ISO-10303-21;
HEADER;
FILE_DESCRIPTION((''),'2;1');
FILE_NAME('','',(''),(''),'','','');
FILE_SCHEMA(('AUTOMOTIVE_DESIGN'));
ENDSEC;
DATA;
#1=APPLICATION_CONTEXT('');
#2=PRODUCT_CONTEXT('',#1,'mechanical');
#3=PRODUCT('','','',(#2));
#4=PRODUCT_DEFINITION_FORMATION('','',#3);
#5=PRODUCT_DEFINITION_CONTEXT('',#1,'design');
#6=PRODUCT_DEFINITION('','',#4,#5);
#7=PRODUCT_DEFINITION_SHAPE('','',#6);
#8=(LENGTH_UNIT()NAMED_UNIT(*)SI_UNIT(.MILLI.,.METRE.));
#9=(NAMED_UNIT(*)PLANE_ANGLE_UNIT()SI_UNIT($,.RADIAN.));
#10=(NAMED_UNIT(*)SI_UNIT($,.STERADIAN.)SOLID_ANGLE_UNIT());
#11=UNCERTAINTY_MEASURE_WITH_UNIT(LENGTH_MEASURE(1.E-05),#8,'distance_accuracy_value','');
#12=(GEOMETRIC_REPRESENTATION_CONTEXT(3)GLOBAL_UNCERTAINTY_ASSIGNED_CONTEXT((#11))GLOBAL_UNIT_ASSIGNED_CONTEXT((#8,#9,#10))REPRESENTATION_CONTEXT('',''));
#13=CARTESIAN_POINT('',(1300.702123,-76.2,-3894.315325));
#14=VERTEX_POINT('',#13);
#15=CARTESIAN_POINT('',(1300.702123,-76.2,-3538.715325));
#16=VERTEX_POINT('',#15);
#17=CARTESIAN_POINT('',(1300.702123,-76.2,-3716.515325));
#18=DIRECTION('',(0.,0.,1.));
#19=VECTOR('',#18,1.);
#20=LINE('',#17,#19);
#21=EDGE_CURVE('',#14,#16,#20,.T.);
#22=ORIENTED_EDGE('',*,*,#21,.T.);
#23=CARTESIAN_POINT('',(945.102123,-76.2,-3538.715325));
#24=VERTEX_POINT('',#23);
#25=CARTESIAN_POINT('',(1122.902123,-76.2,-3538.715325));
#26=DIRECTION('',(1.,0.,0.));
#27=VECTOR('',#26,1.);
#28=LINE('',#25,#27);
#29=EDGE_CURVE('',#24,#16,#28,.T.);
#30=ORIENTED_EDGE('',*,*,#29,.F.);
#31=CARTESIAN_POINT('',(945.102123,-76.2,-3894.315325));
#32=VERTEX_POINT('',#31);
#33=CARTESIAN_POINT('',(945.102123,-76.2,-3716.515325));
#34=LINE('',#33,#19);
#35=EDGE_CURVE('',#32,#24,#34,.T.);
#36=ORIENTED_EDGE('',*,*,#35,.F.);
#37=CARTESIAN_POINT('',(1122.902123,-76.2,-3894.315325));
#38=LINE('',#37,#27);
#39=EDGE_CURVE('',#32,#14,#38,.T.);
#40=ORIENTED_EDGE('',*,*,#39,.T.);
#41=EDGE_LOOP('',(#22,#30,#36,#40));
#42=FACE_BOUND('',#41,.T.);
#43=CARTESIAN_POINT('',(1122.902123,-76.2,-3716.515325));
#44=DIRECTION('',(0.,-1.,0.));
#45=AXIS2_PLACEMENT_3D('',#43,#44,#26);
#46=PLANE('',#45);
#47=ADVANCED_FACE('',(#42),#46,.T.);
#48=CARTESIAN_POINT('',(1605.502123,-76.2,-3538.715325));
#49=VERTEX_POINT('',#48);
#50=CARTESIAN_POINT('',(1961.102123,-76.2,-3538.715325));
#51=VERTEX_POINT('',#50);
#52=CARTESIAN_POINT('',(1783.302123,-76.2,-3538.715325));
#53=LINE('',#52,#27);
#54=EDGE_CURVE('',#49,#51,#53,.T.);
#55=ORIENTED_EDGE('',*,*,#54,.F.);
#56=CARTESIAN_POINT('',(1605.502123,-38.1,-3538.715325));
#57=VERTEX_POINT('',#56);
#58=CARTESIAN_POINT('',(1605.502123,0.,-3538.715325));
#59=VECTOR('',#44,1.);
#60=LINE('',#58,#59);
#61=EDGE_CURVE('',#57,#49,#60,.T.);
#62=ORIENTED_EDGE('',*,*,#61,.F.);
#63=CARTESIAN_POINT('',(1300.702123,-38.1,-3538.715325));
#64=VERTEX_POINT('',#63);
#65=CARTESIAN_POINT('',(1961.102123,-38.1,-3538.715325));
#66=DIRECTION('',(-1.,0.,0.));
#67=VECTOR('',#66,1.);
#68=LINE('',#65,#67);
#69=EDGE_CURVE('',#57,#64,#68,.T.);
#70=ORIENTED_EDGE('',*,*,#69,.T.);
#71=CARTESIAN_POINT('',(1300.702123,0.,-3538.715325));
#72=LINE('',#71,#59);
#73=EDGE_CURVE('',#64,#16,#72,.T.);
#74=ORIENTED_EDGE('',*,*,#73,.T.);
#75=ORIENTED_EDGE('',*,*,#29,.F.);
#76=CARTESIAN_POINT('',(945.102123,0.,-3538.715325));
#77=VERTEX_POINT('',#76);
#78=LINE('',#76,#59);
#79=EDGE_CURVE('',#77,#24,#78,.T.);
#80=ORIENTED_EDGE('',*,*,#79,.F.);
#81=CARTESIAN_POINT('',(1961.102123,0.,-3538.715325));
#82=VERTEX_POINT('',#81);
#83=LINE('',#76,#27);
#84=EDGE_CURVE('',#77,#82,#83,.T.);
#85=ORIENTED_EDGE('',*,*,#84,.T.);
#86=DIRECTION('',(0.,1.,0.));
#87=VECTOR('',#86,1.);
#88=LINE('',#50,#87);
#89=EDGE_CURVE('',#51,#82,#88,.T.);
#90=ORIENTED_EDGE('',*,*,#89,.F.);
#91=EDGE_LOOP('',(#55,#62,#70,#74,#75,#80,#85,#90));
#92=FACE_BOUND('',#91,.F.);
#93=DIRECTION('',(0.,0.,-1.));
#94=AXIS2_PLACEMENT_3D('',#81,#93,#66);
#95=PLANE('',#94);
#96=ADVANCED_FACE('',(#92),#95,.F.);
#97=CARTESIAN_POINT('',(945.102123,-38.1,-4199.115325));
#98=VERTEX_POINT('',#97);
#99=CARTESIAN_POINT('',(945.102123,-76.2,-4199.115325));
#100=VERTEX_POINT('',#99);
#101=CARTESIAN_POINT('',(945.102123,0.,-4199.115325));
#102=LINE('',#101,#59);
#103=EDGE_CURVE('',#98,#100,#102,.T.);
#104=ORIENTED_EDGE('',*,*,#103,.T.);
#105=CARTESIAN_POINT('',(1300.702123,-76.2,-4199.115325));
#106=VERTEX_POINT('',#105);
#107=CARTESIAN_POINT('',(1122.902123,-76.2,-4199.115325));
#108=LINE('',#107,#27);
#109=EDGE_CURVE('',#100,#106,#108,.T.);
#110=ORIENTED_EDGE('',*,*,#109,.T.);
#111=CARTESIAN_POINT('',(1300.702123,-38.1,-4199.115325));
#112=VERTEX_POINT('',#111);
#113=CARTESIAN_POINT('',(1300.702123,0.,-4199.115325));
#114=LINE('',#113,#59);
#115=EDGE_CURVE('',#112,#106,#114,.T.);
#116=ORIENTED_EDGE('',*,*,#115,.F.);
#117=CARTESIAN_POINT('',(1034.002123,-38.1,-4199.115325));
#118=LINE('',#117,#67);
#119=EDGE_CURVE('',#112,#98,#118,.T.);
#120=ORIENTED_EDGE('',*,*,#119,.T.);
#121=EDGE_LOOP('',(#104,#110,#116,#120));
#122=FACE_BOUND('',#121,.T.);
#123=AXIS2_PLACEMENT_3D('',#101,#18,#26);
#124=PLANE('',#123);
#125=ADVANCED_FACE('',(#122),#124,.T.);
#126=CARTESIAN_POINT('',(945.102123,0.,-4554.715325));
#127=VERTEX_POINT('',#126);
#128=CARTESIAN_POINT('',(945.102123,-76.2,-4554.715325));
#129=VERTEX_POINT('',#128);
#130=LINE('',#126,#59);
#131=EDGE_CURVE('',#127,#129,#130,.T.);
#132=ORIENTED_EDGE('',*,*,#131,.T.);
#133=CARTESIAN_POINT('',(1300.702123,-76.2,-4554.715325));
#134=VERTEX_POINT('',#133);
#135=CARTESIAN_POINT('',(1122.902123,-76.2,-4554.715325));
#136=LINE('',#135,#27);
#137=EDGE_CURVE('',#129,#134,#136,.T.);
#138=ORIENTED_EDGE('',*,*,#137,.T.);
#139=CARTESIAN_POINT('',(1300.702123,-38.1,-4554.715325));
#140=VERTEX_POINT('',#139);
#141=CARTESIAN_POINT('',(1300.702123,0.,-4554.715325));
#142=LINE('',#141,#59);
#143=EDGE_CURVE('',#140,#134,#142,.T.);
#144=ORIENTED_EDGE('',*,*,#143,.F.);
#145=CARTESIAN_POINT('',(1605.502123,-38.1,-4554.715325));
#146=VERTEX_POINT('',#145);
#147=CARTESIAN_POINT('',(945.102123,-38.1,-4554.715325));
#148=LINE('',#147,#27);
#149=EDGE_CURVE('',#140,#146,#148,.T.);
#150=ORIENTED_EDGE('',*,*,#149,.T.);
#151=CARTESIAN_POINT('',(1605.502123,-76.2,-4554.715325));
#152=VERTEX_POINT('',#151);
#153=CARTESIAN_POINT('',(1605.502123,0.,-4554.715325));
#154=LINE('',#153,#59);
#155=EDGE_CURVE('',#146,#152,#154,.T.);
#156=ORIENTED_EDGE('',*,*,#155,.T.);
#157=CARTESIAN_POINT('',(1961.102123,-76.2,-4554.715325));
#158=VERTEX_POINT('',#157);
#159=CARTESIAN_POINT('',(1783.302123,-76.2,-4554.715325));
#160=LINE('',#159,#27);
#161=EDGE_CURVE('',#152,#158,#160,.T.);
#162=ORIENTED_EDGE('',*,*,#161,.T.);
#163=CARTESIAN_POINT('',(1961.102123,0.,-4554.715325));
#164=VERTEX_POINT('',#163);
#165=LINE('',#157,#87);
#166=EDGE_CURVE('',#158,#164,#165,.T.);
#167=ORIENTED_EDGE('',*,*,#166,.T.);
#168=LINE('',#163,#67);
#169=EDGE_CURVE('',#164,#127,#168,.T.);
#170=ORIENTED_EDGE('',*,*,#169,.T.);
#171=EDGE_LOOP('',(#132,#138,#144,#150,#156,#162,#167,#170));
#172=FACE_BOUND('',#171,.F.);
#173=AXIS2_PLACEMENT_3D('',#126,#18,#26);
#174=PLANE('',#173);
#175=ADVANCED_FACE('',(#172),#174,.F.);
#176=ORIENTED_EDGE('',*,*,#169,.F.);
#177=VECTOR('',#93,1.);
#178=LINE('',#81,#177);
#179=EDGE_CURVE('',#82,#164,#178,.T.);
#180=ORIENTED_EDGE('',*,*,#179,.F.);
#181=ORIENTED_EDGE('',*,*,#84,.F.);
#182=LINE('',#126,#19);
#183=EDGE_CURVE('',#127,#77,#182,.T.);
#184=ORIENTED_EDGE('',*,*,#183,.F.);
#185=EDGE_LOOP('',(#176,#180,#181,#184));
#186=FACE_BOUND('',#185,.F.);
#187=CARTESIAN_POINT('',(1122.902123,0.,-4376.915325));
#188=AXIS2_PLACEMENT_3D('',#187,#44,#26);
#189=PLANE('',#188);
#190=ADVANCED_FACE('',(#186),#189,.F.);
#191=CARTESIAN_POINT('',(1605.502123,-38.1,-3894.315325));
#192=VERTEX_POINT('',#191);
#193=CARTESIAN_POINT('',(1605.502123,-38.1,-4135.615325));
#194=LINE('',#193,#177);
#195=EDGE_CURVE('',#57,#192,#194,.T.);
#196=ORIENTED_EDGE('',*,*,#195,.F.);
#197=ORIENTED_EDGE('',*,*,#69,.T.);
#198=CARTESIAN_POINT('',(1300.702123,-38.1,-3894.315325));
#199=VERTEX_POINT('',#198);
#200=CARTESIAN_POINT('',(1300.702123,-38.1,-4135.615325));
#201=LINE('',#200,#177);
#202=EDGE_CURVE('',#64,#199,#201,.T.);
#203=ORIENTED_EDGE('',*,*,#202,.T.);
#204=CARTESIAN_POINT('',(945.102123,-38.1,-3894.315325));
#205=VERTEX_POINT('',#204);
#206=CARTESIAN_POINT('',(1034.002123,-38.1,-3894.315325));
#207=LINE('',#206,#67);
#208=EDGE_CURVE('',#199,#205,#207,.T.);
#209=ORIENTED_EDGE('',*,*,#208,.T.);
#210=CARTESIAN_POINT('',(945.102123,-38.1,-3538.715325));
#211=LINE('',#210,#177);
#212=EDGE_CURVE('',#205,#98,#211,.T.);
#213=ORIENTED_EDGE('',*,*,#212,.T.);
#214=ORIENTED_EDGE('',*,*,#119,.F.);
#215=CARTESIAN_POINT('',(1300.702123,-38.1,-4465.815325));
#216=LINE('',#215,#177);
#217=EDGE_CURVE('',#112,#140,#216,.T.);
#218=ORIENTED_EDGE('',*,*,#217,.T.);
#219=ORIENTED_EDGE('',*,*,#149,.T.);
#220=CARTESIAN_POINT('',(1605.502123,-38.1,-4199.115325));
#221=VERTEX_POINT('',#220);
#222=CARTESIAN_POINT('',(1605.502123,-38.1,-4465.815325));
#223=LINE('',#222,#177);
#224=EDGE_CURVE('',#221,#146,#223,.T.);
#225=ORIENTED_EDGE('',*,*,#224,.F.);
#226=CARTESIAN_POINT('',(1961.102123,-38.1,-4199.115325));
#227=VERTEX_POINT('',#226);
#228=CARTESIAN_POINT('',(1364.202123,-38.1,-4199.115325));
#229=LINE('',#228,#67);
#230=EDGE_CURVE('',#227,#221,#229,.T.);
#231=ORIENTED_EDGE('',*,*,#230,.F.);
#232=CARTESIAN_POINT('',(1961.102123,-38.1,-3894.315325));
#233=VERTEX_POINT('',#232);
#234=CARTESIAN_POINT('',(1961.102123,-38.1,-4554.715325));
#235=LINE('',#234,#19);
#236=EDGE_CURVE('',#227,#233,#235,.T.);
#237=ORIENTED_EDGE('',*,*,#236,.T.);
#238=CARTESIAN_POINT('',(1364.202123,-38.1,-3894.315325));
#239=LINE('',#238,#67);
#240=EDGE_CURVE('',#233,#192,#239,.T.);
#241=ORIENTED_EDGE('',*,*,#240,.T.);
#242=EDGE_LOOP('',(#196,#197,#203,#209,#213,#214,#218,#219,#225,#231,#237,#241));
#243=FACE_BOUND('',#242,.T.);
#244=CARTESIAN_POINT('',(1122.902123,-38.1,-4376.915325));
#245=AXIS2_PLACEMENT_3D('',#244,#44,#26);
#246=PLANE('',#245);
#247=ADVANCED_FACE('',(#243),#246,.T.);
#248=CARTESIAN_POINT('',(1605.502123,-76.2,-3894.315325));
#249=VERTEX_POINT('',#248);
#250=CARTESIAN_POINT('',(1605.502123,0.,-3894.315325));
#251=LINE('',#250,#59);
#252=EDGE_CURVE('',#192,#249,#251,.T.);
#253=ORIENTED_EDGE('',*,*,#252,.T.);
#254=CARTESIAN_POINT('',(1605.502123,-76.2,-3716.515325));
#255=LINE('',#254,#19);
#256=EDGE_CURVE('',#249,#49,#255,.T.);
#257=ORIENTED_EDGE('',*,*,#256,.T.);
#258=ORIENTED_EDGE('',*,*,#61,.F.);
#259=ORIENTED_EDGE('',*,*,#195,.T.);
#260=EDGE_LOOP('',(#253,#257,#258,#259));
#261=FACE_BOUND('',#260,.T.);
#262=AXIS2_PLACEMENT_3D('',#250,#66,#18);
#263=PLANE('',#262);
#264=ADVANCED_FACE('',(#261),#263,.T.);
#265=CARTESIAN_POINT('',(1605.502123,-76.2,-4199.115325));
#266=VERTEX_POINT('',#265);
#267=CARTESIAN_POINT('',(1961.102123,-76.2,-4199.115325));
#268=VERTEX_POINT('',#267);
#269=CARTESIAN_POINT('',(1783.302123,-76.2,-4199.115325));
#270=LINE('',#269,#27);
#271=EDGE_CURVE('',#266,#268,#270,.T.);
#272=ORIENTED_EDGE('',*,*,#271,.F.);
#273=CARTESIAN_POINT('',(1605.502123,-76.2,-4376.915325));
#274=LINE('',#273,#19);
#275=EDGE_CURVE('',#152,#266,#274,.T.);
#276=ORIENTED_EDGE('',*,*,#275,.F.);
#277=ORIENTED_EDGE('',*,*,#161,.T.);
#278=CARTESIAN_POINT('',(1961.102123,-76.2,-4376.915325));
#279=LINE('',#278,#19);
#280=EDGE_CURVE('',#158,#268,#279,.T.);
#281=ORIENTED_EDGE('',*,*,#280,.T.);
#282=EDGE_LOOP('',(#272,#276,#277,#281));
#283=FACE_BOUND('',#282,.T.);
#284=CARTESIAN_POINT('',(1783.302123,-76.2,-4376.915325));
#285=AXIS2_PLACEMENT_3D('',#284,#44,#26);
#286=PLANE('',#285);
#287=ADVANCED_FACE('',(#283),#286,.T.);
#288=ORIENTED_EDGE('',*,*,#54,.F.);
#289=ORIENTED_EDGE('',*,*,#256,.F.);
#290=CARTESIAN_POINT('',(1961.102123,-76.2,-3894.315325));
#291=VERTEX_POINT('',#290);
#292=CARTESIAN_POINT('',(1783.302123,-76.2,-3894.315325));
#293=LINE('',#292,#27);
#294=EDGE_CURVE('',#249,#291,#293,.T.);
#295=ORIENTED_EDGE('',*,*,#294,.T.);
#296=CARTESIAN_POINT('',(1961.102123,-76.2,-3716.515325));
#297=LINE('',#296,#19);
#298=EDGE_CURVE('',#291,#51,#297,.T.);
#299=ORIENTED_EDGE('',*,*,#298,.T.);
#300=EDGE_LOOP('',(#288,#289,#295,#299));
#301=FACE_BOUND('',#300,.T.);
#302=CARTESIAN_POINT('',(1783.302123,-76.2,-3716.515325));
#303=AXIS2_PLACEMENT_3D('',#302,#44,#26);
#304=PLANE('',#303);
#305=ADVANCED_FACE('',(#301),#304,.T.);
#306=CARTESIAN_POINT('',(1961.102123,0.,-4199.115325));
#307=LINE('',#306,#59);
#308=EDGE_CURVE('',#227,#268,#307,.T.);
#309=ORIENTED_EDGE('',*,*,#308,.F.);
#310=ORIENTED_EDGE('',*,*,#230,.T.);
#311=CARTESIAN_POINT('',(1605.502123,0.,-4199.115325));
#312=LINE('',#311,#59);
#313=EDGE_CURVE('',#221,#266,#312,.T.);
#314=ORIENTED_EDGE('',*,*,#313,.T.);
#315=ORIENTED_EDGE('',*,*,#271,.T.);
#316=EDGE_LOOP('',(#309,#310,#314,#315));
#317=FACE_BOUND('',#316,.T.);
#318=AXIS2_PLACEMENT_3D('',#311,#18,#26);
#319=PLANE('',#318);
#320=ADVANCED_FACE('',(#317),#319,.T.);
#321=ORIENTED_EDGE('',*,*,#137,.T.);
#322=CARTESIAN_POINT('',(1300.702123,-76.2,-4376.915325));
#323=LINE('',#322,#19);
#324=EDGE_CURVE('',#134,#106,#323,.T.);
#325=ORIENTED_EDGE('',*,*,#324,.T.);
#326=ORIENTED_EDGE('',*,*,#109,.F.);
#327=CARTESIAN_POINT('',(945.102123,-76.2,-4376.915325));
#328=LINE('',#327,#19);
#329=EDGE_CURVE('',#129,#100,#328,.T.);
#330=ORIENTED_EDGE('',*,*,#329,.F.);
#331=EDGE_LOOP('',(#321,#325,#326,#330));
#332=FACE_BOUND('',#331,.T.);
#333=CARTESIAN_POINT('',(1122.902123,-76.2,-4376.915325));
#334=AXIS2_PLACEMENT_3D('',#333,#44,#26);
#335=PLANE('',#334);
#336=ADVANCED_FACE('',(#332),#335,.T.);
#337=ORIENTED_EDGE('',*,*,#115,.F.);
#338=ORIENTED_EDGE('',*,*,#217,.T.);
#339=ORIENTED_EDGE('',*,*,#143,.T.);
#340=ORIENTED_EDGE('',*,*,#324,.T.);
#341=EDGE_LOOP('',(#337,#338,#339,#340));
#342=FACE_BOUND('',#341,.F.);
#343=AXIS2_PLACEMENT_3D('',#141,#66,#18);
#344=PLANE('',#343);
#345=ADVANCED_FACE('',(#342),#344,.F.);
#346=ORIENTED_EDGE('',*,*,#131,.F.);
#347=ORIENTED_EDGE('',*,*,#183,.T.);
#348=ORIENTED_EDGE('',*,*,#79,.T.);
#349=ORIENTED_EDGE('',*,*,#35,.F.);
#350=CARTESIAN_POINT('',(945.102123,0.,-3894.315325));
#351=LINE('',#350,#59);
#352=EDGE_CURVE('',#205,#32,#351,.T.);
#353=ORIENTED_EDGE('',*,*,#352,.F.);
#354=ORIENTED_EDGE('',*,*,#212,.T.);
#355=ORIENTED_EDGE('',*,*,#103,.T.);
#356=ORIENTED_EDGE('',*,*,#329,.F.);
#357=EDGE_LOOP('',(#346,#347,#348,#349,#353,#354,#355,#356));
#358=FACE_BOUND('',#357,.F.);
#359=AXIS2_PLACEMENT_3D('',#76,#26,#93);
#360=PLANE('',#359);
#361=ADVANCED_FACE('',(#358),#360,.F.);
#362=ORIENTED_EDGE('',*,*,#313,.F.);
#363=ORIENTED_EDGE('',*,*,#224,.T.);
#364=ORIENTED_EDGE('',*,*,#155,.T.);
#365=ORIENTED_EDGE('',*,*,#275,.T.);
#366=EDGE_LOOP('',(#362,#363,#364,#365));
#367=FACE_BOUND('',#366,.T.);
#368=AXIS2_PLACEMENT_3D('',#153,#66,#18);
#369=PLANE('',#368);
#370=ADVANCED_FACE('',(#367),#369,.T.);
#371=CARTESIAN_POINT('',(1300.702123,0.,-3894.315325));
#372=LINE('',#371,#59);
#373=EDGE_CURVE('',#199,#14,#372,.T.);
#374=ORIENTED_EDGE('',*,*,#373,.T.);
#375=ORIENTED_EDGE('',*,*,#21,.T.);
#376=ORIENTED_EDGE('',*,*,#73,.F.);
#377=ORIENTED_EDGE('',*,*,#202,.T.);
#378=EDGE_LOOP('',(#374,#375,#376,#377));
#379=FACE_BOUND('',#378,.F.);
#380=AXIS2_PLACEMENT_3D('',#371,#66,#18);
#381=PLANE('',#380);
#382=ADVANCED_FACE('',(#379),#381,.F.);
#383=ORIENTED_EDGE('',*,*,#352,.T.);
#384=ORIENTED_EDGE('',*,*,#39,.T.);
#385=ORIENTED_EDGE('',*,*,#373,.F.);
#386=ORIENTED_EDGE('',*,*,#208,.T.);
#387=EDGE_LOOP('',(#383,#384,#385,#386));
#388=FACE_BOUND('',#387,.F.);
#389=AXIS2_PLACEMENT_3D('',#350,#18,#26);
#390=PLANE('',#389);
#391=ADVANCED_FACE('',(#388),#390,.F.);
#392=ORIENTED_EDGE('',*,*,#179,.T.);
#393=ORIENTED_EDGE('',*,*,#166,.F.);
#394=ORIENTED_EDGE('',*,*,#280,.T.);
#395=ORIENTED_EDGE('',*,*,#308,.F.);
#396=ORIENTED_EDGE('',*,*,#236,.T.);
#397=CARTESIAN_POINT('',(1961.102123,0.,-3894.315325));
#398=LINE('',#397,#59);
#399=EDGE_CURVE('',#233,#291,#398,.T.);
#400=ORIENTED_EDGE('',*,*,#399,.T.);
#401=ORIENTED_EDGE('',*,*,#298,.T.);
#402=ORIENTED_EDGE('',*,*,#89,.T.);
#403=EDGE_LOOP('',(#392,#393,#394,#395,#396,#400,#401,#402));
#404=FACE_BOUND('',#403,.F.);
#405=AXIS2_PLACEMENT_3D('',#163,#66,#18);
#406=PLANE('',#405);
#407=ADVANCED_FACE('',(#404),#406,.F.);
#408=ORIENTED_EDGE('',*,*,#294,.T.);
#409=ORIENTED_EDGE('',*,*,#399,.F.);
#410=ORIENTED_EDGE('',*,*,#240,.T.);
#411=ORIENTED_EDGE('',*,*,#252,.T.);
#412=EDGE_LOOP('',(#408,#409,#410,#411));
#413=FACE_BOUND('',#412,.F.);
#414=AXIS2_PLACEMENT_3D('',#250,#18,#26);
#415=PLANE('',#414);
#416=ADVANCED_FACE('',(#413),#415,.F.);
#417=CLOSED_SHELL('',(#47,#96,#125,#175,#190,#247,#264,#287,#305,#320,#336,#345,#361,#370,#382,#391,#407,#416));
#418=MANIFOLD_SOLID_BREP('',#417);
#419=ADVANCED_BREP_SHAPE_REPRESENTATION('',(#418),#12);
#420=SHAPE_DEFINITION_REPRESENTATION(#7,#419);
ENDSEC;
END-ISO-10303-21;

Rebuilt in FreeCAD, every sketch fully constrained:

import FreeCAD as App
import Part
import Sketcher
from FreeCAD import Vector
Q = App.Units.Quantity

doc = App.newDocument("Part")
body = doc.addObject("PartDesign::Body", "Body")

# Sketch on XZ plane
sketch1 = body.newObject("Sketcher::SketchObject", "Sketch")
sketch1.AttachmentSupport = (doc.getObject("XZ_Plane"), [""])
sketch1.MapMode = "FlatFace"
sketch1.addGeometry(Part.LineSegment(Vector(945, -4555, 0), Vector(1961, -4555, 0)), False)
sketch1.addGeometry(Part.LineSegment(Vector(1961, -4555, 0), Vector(1961, -3539, 0)), False)
sketch1.addGeometry(Part.LineSegment(Vector(1961, -3539, 0), Vector(945, -3539, 0)), False)
sketch1.addGeometry(Part.LineSegment(Vector(945, -3539, 0), Vector(945, -4555, 0)), False)
sketch1.addConstraint(Sketcher.Constraint("Coincident", 0, 2, 1, 1))
sketch1.addConstraint(Sketcher.Constraint("Coincident", 1, 2, 2, 1))
sketch1.addConstraint(Sketcher.Constraint("Coincident", 2, 2, 3, 1))
sketch1.addConstraint(Sketcher.Constraint("Coincident", 3, 2, 0, 1))
sketch1.addConstraint(Sketcher.Constraint("Horizontal", 0))
sketch1.addConstraint(Sketcher.Constraint("Vertical", 1))
sketch1.addConstraint(Sketcher.Constraint("Horizontal", 2))
sketch1.addConstraint(Sketcher.Constraint("Vertical", 3))
sketch1.addConstraint(Sketcher.Constraint("Equal", 2, 1))
sketch1.addConstraint(Sketcher.Constraint("DistanceX", 0, 1, 0, 2, Q("40 in")))
sketch1.addConstraint(Sketcher.Constraint("DistanceX", -1, 1, 0, 2, Q("1961.102123 mm")))
sketch1.addConstraint(Sketcher.Constraint("DistanceY", 0, 2, -1, 1, Q("4554.715325 mm")))
pad1 = body.newObject("PartDesign::Pad", "Pad")
pad1.Profile = sketch1
pad1.Length = Q("1.5 in")

# Sketch on XZ plane
sketch2 = body.newObject("Sketcher::SketchObject", "Sketch001")
sketch2.AttachmentSupport = (doc.getObject("XZ_Plane"), [""])
sketch2.MapMode = "FlatFace"
sketch2.addGeometry(Part.LineSegment(Vector(1606, -3539, 0), Vector(1606, -3894, 0)), False)
sketch2.addGeometry(Part.LineSegment(Vector(1606, -3894, 0), Vector(1961, -3894, 0)), False)
sketch2.addGeometry(Part.LineSegment(Vector(1961, -3894, 0), Vector(1961, -3539, 0)), False)
sketch2.addGeometry(Part.LineSegment(Vector(1961, -3539, 0), Vector(1606, -3539, 0)), False)
sketch2.addGeometry(Part.LineSegment(Vector(1606, -4199, 0), Vector(1606, -4555, 0)), False)
sketch2.addGeometry(Part.LineSegment(Vector(1606, -4555, 0), Vector(1961, -4555, 0)), False)
sketch2.addGeometry(Part.LineSegment(Vector(1961, -4555, 0), Vector(1961, -4199, 0)), False)
sketch2.addGeometry(Part.LineSegment(Vector(1961, -4199, 0), Vector(1606, -4199, 0)), False)
sketch2.addGeometry(Part.LineSegment(Vector(945, -4199, 0), Vector(945, -4555, 0)), False)
sketch2.addGeometry(Part.LineSegment(Vector(945, -4555, 0), Vector(1301, -4555, 0)), False)
sketch2.addGeometry(Part.LineSegment(Vector(1301, -4555, 0), Vector(1301, -4199, 0)), False)
sketch2.addGeometry(Part.LineSegment(Vector(1301, -4199, 0), Vector(945, -4199, 0)), False)
sketch2.addGeometry(Part.LineSegment(Vector(945, -3539, 0), Vector(945, -3894, 0)), False)
sketch2.addGeometry(Part.LineSegment(Vector(945, -3894, 0), Vector(1301, -3894, 0)), False)
sketch2.addGeometry(Part.LineSegment(Vector(1301, -3894, 0), Vector(1301, -3539, 0)), False)
sketch2.addGeometry(Part.LineSegment(Vector(1301, -3539, 0), Vector(945, -3539, 0)), False)
sketch2.addConstraint(Sketcher.Constraint("Coincident", 0, 2, 1, 1))
sketch2.addConstraint(Sketcher.Constraint("Coincident", 1, 2, 2, 1))
sketch2.addConstraint(Sketcher.Constraint("Coincident", 2, 2, 3, 1))
sketch2.addConstraint(Sketcher.Constraint("Coincident", 3, 2, 0, 1))
sketch2.addConstraint(Sketcher.Constraint("Coincident", 4, 2, 5, 1))
sketch2.addConstraint(Sketcher.Constraint("Coincident", 5, 2, 6, 1))
sketch2.addConstraint(Sketcher.Constraint("Coincident", 6, 2, 7, 1))
sketch2.addConstraint(Sketcher.Constraint("Coincident", 7, 2, 4, 1))
sketch2.addConstraint(Sketcher.Constraint("Coincident", 8, 2, 9, 1))
sketch2.addConstraint(Sketcher.Constraint("Coincident", 9, 2, 10, 1))
sketch2.addConstraint(Sketcher.Constraint("Coincident", 10, 2, 11, 1))
sketch2.addConstraint(Sketcher.Constraint("Coincident", 11, 2, 8, 1))
sketch2.addConstraint(Sketcher.Constraint("Coincident", 12, 2, 13, 1))
sketch2.addConstraint(Sketcher.Constraint("Coincident", 13, 2, 14, 1))
sketch2.addConstraint(Sketcher.Constraint("Coincident", 14, 2, 15, 1))
sketch2.addConstraint(Sketcher.Constraint("Coincident", 15, 2, 12, 1))
sketch2.addConstraint(Sketcher.Constraint("Vertical", 0))
sketch2.addConstraint(Sketcher.Constraint("Horizontal", 1))
sketch2.addConstraint(Sketcher.Constraint("Vertical", 2))
sketch2.addConstraint(Sketcher.Constraint("Horizontal", 3))
sketch2.addConstraint(Sketcher.Constraint("Vertical", 4))
sketch2.addConstraint(Sketcher.Constraint("Horizontal", 5))
sketch2.addConstraint(Sketcher.Constraint("Vertical", 6))
sketch2.addConstraint(Sketcher.Constraint("Horizontal", 7))
sketch2.addConstraint(Sketcher.Constraint("Vertical", 8))
sketch2.addConstraint(Sketcher.Constraint("Horizontal", 9))
sketch2.addConstraint(Sketcher.Constraint("Vertical", 10))
sketch2.addConstraint(Sketcher.Constraint("Horizontal", 11))
sketch2.addConstraint(Sketcher.Constraint("Vertical", 12))
sketch2.addConstraint(Sketcher.Constraint("Horizontal", 13))
sketch2.addConstraint(Sketcher.Constraint("Vertical", 14))
sketch2.addConstraint(Sketcher.Constraint("Horizontal", 15))
sketch2.addConstraint(Sketcher.Constraint("Horizontal", 5, 2, 8, 2))
sketch2.addConstraint(Sketcher.Constraint("Horizontal", 7, 2, 10, 2))
sketch2.addConstraint(Sketcher.Constraint("Horizontal", 1, 2, 12, 2))
sketch2.addConstraint(Sketcher.Constraint("Horizontal", 3, 2, 14, 2))
sketch2.addConstraint(Sketcher.Constraint("Vertical", 3, 2, 4, 2))
sketch2.addConstraint(Sketcher.Constraint("Vertical", 2, 2, 5, 2))
sketch2.addConstraint(Sketcher.Constraint("Vertical", 11, 2, 12, 2))
sketch2.addConstraint(Sketcher.Constraint("Vertical", 10, 2, 13, 2))
sketch2.addConstraint(Sketcher.Constraint("Equal", 7, 9))
sketch2.addConstraint(Sketcher.Constraint("Equal", 15, 0))
sketch2.addConstraint(Sketcher.Constraint("Equal", 2, 4))
sketch2.addConstraint(Sketcher.Constraint("DistanceX", 1, 1, 1, 2, Q("14 in")))
sketch2.addConstraint(Sketcher.Constraint("DistanceY", 4, 2, 0, 2, Q("26 in")))
sketch2.addConstraint(Sketcher.Constraint("DistanceX", 8, 2, 4, 2, Q("26 in")))
sketch2.addConstraint(Sketcher.Constraint("DistanceX", -1, 1, 0, 2, Q("1605.502123 mm")))
sketch2.addConstraint(Sketcher.Constraint("DistanceY", 0, 2, -1, 1, Q("3894.315325 mm")))
pad2 = body.newObject("PartDesign::Pad", "Pad001")
pad2.Profile = sketch2
pad2.Length = Q("3 in")

doc.recompute()
